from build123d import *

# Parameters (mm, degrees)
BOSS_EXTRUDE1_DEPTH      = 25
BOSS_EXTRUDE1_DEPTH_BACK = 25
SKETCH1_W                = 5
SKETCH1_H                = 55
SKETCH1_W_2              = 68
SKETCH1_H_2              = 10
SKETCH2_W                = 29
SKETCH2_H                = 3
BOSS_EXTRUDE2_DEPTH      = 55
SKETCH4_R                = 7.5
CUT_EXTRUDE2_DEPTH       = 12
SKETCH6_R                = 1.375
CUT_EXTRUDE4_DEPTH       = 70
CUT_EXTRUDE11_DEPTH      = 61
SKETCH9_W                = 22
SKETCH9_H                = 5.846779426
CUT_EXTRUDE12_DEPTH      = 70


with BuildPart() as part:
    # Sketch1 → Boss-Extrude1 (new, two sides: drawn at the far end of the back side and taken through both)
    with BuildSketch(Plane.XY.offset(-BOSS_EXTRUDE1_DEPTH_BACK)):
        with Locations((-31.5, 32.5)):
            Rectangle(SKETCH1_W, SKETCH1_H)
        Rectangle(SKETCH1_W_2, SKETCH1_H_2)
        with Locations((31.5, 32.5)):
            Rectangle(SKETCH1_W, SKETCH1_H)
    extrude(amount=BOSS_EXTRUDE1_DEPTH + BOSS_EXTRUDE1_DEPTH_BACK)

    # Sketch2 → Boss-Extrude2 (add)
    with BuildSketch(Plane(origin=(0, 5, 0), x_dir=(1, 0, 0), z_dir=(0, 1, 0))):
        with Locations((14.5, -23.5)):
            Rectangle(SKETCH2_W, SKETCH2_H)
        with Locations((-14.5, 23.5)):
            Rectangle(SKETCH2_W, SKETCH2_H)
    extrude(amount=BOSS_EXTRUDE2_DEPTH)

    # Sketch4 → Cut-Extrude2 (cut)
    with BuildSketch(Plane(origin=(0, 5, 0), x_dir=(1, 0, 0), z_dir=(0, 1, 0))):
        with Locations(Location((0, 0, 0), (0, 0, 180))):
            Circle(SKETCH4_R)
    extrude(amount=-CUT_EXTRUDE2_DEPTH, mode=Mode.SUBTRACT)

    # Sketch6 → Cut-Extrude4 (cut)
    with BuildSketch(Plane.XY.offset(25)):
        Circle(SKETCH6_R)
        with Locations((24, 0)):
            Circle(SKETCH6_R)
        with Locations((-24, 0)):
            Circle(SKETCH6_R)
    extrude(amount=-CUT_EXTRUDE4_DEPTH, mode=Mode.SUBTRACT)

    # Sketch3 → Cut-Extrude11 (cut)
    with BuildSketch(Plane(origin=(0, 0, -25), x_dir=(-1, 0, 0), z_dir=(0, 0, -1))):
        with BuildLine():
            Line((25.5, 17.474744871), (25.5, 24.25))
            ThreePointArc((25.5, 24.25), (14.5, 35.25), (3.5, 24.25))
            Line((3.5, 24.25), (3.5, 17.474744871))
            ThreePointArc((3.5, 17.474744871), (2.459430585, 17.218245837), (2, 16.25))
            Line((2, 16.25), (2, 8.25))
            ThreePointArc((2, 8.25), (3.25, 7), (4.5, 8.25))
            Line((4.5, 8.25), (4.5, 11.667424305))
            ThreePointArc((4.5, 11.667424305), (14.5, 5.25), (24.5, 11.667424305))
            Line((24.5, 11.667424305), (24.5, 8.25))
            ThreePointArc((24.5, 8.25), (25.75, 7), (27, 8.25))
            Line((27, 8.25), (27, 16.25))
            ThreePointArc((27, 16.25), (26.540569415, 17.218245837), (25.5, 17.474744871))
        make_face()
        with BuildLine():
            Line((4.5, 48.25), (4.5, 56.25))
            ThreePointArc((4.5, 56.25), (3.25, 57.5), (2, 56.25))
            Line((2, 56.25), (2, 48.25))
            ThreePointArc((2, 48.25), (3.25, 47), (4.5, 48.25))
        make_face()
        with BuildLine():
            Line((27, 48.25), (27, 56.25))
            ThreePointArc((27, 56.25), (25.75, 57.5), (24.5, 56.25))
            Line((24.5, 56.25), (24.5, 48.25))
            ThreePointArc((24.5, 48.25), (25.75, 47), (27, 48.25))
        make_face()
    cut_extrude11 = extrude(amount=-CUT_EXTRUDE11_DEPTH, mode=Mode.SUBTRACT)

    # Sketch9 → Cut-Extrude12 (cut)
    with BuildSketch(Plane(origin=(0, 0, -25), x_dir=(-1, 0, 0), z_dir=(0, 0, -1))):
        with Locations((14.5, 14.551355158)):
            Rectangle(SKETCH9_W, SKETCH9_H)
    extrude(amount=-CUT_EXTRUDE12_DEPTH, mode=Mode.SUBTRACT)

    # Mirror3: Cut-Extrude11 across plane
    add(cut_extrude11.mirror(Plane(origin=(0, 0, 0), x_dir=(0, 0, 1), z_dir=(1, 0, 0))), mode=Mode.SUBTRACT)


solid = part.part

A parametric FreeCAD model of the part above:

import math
import FreeCAD as App
import Part
import Sketcher

V = App.Vector


def add_polygon(sketch, points):
    """Adds a closed chain of lines whose ends are joined by coincident constraints."""
    first, n = sketch.GeometryCount, len(points)
    for a, b in zip(points, points[1:] + points[:1]):
        sketch.addGeometry(Part.LineSegment(App.Vector(*a, 0), App.Vector(*b, 0)), False)
    for i in range(n):
        sketch.addConstraint(Sketcher.Constraint("Coincident", first + i, 2, first + (i + 1) % n, 1))

doc = App.newDocument("Part")
params = doc.addObject("Spreadsheet::Sheet", "Params")
for row, (alias, value) in enumerate([
    ("sketch1_width", "68 mm"),
    ("sketch1_width2", "5 mm"),
    ("sketch1_height", "65 mm"),
    ("sketch1_height2", "55 mm"),
    ("pad1_length", "25 mm"),
    ("pad1_length2", "25 mm"),
    ("sketch2_width", "29 mm"),
    ("sketch2_height", "3 mm"),
    ("pad2_length", "55 mm"),
    ("sketch3_diameter", "15 mm"),
    ("pocket1_length", "12 mm"),
    ("sketch4_diameter", "2.75 mm"),
    ("pocket2_length", "70 mm"),
    ("sketch5_radius", "11 mm"),
    ("sketch5_height", "8 mm"),
    ("sketch5_radius2", "1.25 mm"),
    ("pocket3_length", "61 mm"),
    ("sketch6_width", "22 mm"),
    ("pocket4_length", "70 mm"),
], start=1):
    params.set(f"A{row}", alias)
    params.set(f"B{row}", "=" + value)
    params.setAlias(f"B{row}", alias)

body = doc.addObject("PartDesign::Body", "Body")

sketch1 = body.newObject("Sketcher::SketchObject", "Sketch")
sketch1.AttachmentSupport = (doc.getObject("XY_Plane"), [""])
sketch1.MapMode = "FlatFace"
add_polygon(sketch1, [(-34, 60), (-34, -5), (34, -5), (34, 60), (29, 60), (29, 5), (-29, 5), (-29, 60)])
sketch1.addConstraint([
    Sketcher.Constraint("Vertical", 0),
    Sketcher.Constraint("Horizontal", 1),
    Sketcher.Constraint("Vertical", 2),
    Sketcher.Constraint("Horizontal", 3),
    Sketcher.Constraint("Vertical", 4),
    Sketcher.Constraint("Horizontal", 5),
    Sketcher.Constraint("Vertical", 6),
    Sketcher.Constraint("Horizontal", 7),
    Sketcher.Constraint("Symmetric", 3, 2, 6, 2, -2),
    Sketcher.Constraint("Equal", 3, 7),
    Sketcher.Constraint("DistanceX", 1, 1, 1, 2, 68.0),
    Sketcher.Constraint("DistanceX", 3, 2, 3, 1, 5.0),
    Sketcher.Constraint("DistanceY", 0, 2, 0, 1, 65.0),
    Sketcher.Constraint("DistanceY", 4, 2, 4, 1, 55.0),
    Sketcher.Constraint("DistanceY", 0, 2, -1, 1, 5.0),
])
sketch1.setExpression("Constraints[18]", "Params.sketch1_width")
sketch1.setExpression("Constraints[19]", "Params.sketch1_width2")
sketch1.setExpression("Constraints[20]", "Params.sketch1_height")
sketch1.setExpression("Constraints[21]", "Params.sketch1_height2")
pad1 = body.newObject("PartDesign::Pad", "Pad")
pad1.Profile = sketch1
pad1.Type = "TwoLengths"
pad1.setExpression("Length", "Params.pad1_length")
pad1.setExpression("Length2", "Params.pad1_length2")

sketch2 = body.newObject("Sketcher::SketchObject", "Sketch001")
sketch2.AttachmentSupport = (doc.getObject("XZ_Plane"), [""])
sketch2.MapMode = "FlatFace"
sketch2.AttachmentOffset = App.Placement(V(0, 0, -5), App.Rotation())
add_polygon(sketch2, [(0, 22), (0, 25), (29, 25), (29, 22)])
add_polygon(sketch2, [(-29, -25), (-29, -22), (0, -22), (0, -25)])
sketch2.addConstraint([
    Sketcher.Constraint("Vertical", 0),
    Sketcher.Constraint("Horizontal", 1),
    Sketcher.Constraint("Vertical", 2),
    Sketcher.Constraint("Horizontal", 3),
    Sketcher.Constraint("Vertical", 4),
    Sketcher.Constraint("Horizontal", 5),
    Sketcher.Constraint("Vertical", 6),
    Sketcher.Constraint("Horizontal", 7),
    Sketcher.Constraint("Symmetric", 2, 2, 4, 2, -1, 1),
    Sketcher.Constraint("Symmetric", 0, 2, 6, 2, -1, 1),
    Sketcher.Constraint("PointOnObject", 0, 2, -2),
    Sketcher.Constraint("DistanceX", 1, 1, 1, 2, 29.0),
    Sketcher.Constraint("DistanceY", 0, 1, 0, 2, 3.0),
    Sketcher.Constraint("DistanceY", -1, 1, 0, 2, 25.0),
])
sketch2.setExpression("Constraints[19]", "Params.sketch2_width")
sketch2.setExpression("Constraints[20]", "Params.sketch2_height")
pad2 = body.newObject("PartDesign::Pad", "Pad001")
pad2.Profile = sketch2
pad2.setExpression("Length", "Params.pad2_length")
pad2.Reversed = True

sketch3 = body.newObject("Sketcher::SketchObject", "Sketch002")
sketch3.AttachmentSupport = (doc.getObject("XZ_Plane"), [""])
sketch3.MapMode = "FlatFace"
sketch3.AttachmentOffset = App.Placement(V(0, 0, -5), App.Rotation())
sketch3.addGeometry(Part.Circle(V(0, 0, 0), V(0, 0, 1), 8), False)
sketch3.addConstraint([
    Sketcher.Constraint("Coincident", 0, 3, -1, 1),
    Sketcher.Constraint("Diameter", 0, 15.0),
])
sketch3.setExpression("Constraints[1]", "Params.sketch3_diameter")
pocket1 = body.newObject("PartDesign::Pocket", "Pocket")
pocket1.Profile = sketch3
pocket1.setExpression("Length", "Params.pocket1_length")
pocket1.Reversed = True

sketch4 = body.newObject("Sketcher::SketchObject", "Sketch003")
sketch4.AttachmentSupport = (doc.getObject("XY_Plane"), [""])
sketch4.MapMode = "FlatFace"
sketch4.AttachmentOffset = App.Placement(V(0, 0, 25), App.Rotation())
sketch4.addGeometry([
    Part.Circle(V(0, 0, 0), V(0, 0, 1), 1.4),
    Part.Circle(V(24, 0, 0), V(0, 0, 1), 1.4),
    Part.Circle(V(-24, 0, 0), V(0, 0, 1), 1.4),
], False)
sketch4.addConstraint([
    Sketcher.Constraint("Coincident", 0, 3, -1, 1),
    Sketcher.Constraint("Equal", 0, 1),
    Sketcher.Constraint("Equal", 1, 2),
    Sketcher.Constraint("Symmetric", 1, 3, 2, 3, -1, 1),
    Sketcher.Constraint("PointOnObject", 1, 3, -1),
    Sketcher.Constraint("Diameter", 0, 2.75),
    Sketcher.Constraint("DistanceX", -1, 1, 1, 3, 24.0),
])
sketch4.setExpression("Constraints[5]", "Params.sketch4_diameter")
pocket2 = body.newObject("PartDesign::Pocket", "Pocket001")
pocket2.Profile = sketch4
pocket2.setExpression("Length", "Params.pocket2_length")

sketch5 = body.newObject("Sketcher::SketchObject", "Sketch004")
sketch5.AttachmentSupport = (doc.getObject("XY_Plane"), [""])
sketch5.MapMode = "FlatFace"
sketch5.AttachmentOffset = App.Placement(V(0, 0, -25), App.Rotation())
sketch5.addGeometry([
    Part.LineSegment(V(-25.5, 17.5, 0), V(-25.5, 24.2, 0)),
    Part.ArcOfCircle(Part.Circle(V(-14.5, 24.2, 0), V(0, 0, 1), 11), math.radians(0), math.radians(180)),
    Part.LineSegment(V(-3.5, 24.2, 0), V(-3.5, 17.5, 0)),
    Part.ArcOfCircle(Part.Circle(V(-3.2, 16.3, 0), V(0, 0, 1), 1.2), math.radians(0), math.radians(102)),
    Part.LineSegment(V(-2, 16.2, 0), V(-2, 8.2, 0)),
    Part.ArcOfCircle(Part.Circle(V(-3.2, 8.2, 0), V(0, 0, 1), 1.2), math.radians(180), math.radians(360)),
    Part.LineSegment(V(-4.5, 8.2, 0), V(-4.5, 11.7, 0)),
    Part.ArcOfCircle(Part.Circle(V(-14.5, 16.2, 0), V(0, 0, 1), 11), math.radians(-155), math.radians(-25)),
    Part.LineSegment(V(-24.5, 11.7, 0), V(-24.5, 8.2, 0)),
    Part.ArcOfCircle(Part.Circle(V(-25.8, 8.2, 0), V(0, 0, 1), 1.2), math.radians(180), math.radians(360)),
    Part.LineSegment(V(-27, 8.2, 0), V(-27, 16.2, 0)),
    Part.ArcOfCircle(Part.Circle(V(-25.8, 16.3, 0), V(0, 0, 1), 1.2), math.radians(78), math.radians(180)),
    Part.LineSegment(V(-4.5, 48.2, 0), V(-4.5, 56.2, 0)),
    Part.ArcOfCircle(Part.Circle(V(-3.2, 56.2, 0), V(0, 0, 1), 1.2), math.radians(0), math.radians(180)),
    Part.LineSegment(V(-2, 56.2, 0), V(-2, 48.2, 0)),
    Part.ArcOfCircle(Part.Circle(V(-3.2, 48.2, 0), V(0, 0, 1), 1.2), math.radians(180), math.radians(360)),
    Part.LineSegment(V(-27, 48.2, 0), V(-27, 56.2, 0)),
    Part.ArcOfCircle(Part.Circle(V(-25.8, 56.2, 0), V(0, 0, 1), 1.2), math.radians(0), math.radians(180)),
    Part.LineSegment(V(-24.5, 56.2, 0), V(-24.5, 48.2, 0)),
    Part.ArcOfCircle(Part.Circle(V(-25.8, 48.2, 0), V(0, 0, 1), 1.2), math.radians(180), math.radians(360)),
], False)
sketch5.addConstraint([
    Sketcher.Constraint("Tangent", 0, 2, 1, 2),
    Sketcher.Constraint("Tangent", 1, 1, 2, 1),
    Sketcher.Constraint("Coincident", 2, 2, 3, 2),
    Sketcher.Constraint("Tangent", 3, 1, 4, 1),
    Sketcher.Constraint("Tangent", 4, 2, 5, 2),
    Sketcher.Constraint("Tangent", 5, 1, 6, 1),
    Sketcher.Constraint("Coincident", 6, 2, 7, 2),
    Sketcher.Constraint("Coincident", 7, 1, 8, 1),
    Sketcher.Constraint("Tangent", 8, 2, 9, 2),
    Sketcher.Constraint("Tangent", 9, 1, 10, 1),
    Sketcher.Constraint("Tangent", 10, 2, 11, 2),
    Sketcher.Constraint("Coincident", 11, 1, 0, 1),
    Sketcher.Constraint("Tangent", 12, 2, 13, 2),
    Sketcher.Constraint("Tangent", 13, 1, 14, 1),
    Sketcher.Constraint("Tangent", 14, 2, 15, 2),
    Sketcher.Constraint("Tangent", 15, 1, 12, 1),
    Sketcher.Constraint("Tangent", 16, 2, 17, 2),
    Sketcher.Constraint("Tangent", 17, 1, 18, 1),
    Sketcher.Constraint("Tangent", 18, 2, 19, 2),
    Sketcher.Constraint("Tangent", 19, 1, 16, 1),
    Sketcher.Constraint("Vertical", 0),
    Sketcher.Constraint("Vertical", 2),
    Sketcher.Constraint("Vertical", 4),
    Sketcher.Constraint("Vertical", 6),
    Sketcher.Constraint("Vertical", 8),
    Sketcher.Constraint("Vertical", 10),
    Sketcher.Constraint("Vertical", 12),
    Sketcher.Constraint("Vertical", 14),
    Sketcher.Constraint("Vertical", 16),
    Sketcher.Constraint("Vertical", 18),
    Sketcher.Constraint("Equal", 3, 5),
    Sketcher.Constraint("Equal", 1, 7),
    Sketcher.Constraint("Equal", 5, 9),
    Sketcher.Constraint("Equal", 9, 11),
    Sketcher.Constraint("Equal", 11, 13),
    Sketcher.Constraint("Equal", 15, 17),
    Sketcher.Constraint("Horizontal", 3, 3, 7, 3),
    Sketcher.Constraint("Horizontal", 5, 3, 9, 3),
    Sketcher.Constraint("Horizontal", 7, 3, 11, 3),
    Sketcher.Constraint("Horizontal", 13, 3, 17, 3),
    Sketcher.Constraint("Horizontal", 15, 3, 19, 3),
    Sketcher.Constraint("Horizontal", 6, 2, 7, 1),
    Sketcher.Constraint("Horizontal", 2, 2, 11, 1),
    Sketcher.Constraint("Vertical", 5, 3, 13, 3),
    Sketcher.Constraint("Vertical", 11, 3, 17, 3),
    Sketcher.Constraint("Equal", 10, 12),
    Sketcher.Constraint("Radius", 1, 11.0),
    Sketcher.Constraint("DistanceY", 4, 2, 4, 1, 8.0),
    Sketcher.Constraint("Radius", 3, 1.25),
    Sketcher.Constraint("DistanceX", 3, 1, -1, 1, 2.0),
    Sketcher.Constraint("DistanceX", 9, 1, -1, 1, 27.0),
    Sketcher.Constraint("DistanceY", 3, 3, 1, 3, 8.0),
    Sketcher.Constraint("DistanceY", 1, 3, 13, 3, 32.0),
    Sketcher.Constraint("DistanceY", -1, 1, 1, 3, 24.25),
])
sketch5.setExpression("Constraints[46]", "Params.sketch5_radius")
sketch5.setExpression("Constraints[47]", "Params.sketch5_height")
sketch5.setExpression("Constraints[48]", "Params.sketch5_radius2")
pocket3 = body.newObject("PartDesign::Pocket", "Pocket002")
pocket3.Profile = sketch5
pocket3.setExpression("Length", "Params.pocket3_length")
pocket3.Reversed = True

sketch6 = body.newObject("Sketcher::SketchObject", "Sketch005")
sketch6.AttachmentSupport = (doc.getObject("XY_Plane"), [""])
sketch6.MapMode = "FlatFace"
sketch6.AttachmentOffset = App.Placement(V(0, 0, -25), App.Rotation())
add_polygon(sketch6, [(-4, 17), (-4, 12), (-26, 12), (-26, 17)])
sketch6.addConstraint([
    Sketcher.Constraint("Vertical", 0),
    Sketcher.Constraint("Horizontal", 1),
    Sketcher.Constraint("Vertical", 2),
    Sketcher.Constraint("Horizontal", 3),
    Sketcher.Constraint("DistanceX", 1, 2, 1, 1, 22.0),
    Sketcher.Constraint("DistanceX", 0, 2, -1, 1, 3.5),
    Sketcher.Constraint("DistanceY", 0, 2, 0, 1, 5.846779),
    Sketcher.Constraint("DistanceY", -1, 1, 0, 2, 11.627965),
])
sketch6.setExpression("Constraints[8]", "Params.sketch6_width")
pocket4 = body.newObject("PartDesign::Pocket", "Pocket003")
pocket4.Profile = sketch6
pocket4.setExpression("Length", "Params.pocket4_length")
pocket4.Reversed = True
doc.recompute()

mirrored = body.newObject("PartDesign::Mirrored", "Mirrored")
mirrored.Originals = [pocket3]
mirrored.MirrorPlane = (doc.getObject("YZ_Plane"), [""])
body.Tip = mirrored

doc.recompute()
